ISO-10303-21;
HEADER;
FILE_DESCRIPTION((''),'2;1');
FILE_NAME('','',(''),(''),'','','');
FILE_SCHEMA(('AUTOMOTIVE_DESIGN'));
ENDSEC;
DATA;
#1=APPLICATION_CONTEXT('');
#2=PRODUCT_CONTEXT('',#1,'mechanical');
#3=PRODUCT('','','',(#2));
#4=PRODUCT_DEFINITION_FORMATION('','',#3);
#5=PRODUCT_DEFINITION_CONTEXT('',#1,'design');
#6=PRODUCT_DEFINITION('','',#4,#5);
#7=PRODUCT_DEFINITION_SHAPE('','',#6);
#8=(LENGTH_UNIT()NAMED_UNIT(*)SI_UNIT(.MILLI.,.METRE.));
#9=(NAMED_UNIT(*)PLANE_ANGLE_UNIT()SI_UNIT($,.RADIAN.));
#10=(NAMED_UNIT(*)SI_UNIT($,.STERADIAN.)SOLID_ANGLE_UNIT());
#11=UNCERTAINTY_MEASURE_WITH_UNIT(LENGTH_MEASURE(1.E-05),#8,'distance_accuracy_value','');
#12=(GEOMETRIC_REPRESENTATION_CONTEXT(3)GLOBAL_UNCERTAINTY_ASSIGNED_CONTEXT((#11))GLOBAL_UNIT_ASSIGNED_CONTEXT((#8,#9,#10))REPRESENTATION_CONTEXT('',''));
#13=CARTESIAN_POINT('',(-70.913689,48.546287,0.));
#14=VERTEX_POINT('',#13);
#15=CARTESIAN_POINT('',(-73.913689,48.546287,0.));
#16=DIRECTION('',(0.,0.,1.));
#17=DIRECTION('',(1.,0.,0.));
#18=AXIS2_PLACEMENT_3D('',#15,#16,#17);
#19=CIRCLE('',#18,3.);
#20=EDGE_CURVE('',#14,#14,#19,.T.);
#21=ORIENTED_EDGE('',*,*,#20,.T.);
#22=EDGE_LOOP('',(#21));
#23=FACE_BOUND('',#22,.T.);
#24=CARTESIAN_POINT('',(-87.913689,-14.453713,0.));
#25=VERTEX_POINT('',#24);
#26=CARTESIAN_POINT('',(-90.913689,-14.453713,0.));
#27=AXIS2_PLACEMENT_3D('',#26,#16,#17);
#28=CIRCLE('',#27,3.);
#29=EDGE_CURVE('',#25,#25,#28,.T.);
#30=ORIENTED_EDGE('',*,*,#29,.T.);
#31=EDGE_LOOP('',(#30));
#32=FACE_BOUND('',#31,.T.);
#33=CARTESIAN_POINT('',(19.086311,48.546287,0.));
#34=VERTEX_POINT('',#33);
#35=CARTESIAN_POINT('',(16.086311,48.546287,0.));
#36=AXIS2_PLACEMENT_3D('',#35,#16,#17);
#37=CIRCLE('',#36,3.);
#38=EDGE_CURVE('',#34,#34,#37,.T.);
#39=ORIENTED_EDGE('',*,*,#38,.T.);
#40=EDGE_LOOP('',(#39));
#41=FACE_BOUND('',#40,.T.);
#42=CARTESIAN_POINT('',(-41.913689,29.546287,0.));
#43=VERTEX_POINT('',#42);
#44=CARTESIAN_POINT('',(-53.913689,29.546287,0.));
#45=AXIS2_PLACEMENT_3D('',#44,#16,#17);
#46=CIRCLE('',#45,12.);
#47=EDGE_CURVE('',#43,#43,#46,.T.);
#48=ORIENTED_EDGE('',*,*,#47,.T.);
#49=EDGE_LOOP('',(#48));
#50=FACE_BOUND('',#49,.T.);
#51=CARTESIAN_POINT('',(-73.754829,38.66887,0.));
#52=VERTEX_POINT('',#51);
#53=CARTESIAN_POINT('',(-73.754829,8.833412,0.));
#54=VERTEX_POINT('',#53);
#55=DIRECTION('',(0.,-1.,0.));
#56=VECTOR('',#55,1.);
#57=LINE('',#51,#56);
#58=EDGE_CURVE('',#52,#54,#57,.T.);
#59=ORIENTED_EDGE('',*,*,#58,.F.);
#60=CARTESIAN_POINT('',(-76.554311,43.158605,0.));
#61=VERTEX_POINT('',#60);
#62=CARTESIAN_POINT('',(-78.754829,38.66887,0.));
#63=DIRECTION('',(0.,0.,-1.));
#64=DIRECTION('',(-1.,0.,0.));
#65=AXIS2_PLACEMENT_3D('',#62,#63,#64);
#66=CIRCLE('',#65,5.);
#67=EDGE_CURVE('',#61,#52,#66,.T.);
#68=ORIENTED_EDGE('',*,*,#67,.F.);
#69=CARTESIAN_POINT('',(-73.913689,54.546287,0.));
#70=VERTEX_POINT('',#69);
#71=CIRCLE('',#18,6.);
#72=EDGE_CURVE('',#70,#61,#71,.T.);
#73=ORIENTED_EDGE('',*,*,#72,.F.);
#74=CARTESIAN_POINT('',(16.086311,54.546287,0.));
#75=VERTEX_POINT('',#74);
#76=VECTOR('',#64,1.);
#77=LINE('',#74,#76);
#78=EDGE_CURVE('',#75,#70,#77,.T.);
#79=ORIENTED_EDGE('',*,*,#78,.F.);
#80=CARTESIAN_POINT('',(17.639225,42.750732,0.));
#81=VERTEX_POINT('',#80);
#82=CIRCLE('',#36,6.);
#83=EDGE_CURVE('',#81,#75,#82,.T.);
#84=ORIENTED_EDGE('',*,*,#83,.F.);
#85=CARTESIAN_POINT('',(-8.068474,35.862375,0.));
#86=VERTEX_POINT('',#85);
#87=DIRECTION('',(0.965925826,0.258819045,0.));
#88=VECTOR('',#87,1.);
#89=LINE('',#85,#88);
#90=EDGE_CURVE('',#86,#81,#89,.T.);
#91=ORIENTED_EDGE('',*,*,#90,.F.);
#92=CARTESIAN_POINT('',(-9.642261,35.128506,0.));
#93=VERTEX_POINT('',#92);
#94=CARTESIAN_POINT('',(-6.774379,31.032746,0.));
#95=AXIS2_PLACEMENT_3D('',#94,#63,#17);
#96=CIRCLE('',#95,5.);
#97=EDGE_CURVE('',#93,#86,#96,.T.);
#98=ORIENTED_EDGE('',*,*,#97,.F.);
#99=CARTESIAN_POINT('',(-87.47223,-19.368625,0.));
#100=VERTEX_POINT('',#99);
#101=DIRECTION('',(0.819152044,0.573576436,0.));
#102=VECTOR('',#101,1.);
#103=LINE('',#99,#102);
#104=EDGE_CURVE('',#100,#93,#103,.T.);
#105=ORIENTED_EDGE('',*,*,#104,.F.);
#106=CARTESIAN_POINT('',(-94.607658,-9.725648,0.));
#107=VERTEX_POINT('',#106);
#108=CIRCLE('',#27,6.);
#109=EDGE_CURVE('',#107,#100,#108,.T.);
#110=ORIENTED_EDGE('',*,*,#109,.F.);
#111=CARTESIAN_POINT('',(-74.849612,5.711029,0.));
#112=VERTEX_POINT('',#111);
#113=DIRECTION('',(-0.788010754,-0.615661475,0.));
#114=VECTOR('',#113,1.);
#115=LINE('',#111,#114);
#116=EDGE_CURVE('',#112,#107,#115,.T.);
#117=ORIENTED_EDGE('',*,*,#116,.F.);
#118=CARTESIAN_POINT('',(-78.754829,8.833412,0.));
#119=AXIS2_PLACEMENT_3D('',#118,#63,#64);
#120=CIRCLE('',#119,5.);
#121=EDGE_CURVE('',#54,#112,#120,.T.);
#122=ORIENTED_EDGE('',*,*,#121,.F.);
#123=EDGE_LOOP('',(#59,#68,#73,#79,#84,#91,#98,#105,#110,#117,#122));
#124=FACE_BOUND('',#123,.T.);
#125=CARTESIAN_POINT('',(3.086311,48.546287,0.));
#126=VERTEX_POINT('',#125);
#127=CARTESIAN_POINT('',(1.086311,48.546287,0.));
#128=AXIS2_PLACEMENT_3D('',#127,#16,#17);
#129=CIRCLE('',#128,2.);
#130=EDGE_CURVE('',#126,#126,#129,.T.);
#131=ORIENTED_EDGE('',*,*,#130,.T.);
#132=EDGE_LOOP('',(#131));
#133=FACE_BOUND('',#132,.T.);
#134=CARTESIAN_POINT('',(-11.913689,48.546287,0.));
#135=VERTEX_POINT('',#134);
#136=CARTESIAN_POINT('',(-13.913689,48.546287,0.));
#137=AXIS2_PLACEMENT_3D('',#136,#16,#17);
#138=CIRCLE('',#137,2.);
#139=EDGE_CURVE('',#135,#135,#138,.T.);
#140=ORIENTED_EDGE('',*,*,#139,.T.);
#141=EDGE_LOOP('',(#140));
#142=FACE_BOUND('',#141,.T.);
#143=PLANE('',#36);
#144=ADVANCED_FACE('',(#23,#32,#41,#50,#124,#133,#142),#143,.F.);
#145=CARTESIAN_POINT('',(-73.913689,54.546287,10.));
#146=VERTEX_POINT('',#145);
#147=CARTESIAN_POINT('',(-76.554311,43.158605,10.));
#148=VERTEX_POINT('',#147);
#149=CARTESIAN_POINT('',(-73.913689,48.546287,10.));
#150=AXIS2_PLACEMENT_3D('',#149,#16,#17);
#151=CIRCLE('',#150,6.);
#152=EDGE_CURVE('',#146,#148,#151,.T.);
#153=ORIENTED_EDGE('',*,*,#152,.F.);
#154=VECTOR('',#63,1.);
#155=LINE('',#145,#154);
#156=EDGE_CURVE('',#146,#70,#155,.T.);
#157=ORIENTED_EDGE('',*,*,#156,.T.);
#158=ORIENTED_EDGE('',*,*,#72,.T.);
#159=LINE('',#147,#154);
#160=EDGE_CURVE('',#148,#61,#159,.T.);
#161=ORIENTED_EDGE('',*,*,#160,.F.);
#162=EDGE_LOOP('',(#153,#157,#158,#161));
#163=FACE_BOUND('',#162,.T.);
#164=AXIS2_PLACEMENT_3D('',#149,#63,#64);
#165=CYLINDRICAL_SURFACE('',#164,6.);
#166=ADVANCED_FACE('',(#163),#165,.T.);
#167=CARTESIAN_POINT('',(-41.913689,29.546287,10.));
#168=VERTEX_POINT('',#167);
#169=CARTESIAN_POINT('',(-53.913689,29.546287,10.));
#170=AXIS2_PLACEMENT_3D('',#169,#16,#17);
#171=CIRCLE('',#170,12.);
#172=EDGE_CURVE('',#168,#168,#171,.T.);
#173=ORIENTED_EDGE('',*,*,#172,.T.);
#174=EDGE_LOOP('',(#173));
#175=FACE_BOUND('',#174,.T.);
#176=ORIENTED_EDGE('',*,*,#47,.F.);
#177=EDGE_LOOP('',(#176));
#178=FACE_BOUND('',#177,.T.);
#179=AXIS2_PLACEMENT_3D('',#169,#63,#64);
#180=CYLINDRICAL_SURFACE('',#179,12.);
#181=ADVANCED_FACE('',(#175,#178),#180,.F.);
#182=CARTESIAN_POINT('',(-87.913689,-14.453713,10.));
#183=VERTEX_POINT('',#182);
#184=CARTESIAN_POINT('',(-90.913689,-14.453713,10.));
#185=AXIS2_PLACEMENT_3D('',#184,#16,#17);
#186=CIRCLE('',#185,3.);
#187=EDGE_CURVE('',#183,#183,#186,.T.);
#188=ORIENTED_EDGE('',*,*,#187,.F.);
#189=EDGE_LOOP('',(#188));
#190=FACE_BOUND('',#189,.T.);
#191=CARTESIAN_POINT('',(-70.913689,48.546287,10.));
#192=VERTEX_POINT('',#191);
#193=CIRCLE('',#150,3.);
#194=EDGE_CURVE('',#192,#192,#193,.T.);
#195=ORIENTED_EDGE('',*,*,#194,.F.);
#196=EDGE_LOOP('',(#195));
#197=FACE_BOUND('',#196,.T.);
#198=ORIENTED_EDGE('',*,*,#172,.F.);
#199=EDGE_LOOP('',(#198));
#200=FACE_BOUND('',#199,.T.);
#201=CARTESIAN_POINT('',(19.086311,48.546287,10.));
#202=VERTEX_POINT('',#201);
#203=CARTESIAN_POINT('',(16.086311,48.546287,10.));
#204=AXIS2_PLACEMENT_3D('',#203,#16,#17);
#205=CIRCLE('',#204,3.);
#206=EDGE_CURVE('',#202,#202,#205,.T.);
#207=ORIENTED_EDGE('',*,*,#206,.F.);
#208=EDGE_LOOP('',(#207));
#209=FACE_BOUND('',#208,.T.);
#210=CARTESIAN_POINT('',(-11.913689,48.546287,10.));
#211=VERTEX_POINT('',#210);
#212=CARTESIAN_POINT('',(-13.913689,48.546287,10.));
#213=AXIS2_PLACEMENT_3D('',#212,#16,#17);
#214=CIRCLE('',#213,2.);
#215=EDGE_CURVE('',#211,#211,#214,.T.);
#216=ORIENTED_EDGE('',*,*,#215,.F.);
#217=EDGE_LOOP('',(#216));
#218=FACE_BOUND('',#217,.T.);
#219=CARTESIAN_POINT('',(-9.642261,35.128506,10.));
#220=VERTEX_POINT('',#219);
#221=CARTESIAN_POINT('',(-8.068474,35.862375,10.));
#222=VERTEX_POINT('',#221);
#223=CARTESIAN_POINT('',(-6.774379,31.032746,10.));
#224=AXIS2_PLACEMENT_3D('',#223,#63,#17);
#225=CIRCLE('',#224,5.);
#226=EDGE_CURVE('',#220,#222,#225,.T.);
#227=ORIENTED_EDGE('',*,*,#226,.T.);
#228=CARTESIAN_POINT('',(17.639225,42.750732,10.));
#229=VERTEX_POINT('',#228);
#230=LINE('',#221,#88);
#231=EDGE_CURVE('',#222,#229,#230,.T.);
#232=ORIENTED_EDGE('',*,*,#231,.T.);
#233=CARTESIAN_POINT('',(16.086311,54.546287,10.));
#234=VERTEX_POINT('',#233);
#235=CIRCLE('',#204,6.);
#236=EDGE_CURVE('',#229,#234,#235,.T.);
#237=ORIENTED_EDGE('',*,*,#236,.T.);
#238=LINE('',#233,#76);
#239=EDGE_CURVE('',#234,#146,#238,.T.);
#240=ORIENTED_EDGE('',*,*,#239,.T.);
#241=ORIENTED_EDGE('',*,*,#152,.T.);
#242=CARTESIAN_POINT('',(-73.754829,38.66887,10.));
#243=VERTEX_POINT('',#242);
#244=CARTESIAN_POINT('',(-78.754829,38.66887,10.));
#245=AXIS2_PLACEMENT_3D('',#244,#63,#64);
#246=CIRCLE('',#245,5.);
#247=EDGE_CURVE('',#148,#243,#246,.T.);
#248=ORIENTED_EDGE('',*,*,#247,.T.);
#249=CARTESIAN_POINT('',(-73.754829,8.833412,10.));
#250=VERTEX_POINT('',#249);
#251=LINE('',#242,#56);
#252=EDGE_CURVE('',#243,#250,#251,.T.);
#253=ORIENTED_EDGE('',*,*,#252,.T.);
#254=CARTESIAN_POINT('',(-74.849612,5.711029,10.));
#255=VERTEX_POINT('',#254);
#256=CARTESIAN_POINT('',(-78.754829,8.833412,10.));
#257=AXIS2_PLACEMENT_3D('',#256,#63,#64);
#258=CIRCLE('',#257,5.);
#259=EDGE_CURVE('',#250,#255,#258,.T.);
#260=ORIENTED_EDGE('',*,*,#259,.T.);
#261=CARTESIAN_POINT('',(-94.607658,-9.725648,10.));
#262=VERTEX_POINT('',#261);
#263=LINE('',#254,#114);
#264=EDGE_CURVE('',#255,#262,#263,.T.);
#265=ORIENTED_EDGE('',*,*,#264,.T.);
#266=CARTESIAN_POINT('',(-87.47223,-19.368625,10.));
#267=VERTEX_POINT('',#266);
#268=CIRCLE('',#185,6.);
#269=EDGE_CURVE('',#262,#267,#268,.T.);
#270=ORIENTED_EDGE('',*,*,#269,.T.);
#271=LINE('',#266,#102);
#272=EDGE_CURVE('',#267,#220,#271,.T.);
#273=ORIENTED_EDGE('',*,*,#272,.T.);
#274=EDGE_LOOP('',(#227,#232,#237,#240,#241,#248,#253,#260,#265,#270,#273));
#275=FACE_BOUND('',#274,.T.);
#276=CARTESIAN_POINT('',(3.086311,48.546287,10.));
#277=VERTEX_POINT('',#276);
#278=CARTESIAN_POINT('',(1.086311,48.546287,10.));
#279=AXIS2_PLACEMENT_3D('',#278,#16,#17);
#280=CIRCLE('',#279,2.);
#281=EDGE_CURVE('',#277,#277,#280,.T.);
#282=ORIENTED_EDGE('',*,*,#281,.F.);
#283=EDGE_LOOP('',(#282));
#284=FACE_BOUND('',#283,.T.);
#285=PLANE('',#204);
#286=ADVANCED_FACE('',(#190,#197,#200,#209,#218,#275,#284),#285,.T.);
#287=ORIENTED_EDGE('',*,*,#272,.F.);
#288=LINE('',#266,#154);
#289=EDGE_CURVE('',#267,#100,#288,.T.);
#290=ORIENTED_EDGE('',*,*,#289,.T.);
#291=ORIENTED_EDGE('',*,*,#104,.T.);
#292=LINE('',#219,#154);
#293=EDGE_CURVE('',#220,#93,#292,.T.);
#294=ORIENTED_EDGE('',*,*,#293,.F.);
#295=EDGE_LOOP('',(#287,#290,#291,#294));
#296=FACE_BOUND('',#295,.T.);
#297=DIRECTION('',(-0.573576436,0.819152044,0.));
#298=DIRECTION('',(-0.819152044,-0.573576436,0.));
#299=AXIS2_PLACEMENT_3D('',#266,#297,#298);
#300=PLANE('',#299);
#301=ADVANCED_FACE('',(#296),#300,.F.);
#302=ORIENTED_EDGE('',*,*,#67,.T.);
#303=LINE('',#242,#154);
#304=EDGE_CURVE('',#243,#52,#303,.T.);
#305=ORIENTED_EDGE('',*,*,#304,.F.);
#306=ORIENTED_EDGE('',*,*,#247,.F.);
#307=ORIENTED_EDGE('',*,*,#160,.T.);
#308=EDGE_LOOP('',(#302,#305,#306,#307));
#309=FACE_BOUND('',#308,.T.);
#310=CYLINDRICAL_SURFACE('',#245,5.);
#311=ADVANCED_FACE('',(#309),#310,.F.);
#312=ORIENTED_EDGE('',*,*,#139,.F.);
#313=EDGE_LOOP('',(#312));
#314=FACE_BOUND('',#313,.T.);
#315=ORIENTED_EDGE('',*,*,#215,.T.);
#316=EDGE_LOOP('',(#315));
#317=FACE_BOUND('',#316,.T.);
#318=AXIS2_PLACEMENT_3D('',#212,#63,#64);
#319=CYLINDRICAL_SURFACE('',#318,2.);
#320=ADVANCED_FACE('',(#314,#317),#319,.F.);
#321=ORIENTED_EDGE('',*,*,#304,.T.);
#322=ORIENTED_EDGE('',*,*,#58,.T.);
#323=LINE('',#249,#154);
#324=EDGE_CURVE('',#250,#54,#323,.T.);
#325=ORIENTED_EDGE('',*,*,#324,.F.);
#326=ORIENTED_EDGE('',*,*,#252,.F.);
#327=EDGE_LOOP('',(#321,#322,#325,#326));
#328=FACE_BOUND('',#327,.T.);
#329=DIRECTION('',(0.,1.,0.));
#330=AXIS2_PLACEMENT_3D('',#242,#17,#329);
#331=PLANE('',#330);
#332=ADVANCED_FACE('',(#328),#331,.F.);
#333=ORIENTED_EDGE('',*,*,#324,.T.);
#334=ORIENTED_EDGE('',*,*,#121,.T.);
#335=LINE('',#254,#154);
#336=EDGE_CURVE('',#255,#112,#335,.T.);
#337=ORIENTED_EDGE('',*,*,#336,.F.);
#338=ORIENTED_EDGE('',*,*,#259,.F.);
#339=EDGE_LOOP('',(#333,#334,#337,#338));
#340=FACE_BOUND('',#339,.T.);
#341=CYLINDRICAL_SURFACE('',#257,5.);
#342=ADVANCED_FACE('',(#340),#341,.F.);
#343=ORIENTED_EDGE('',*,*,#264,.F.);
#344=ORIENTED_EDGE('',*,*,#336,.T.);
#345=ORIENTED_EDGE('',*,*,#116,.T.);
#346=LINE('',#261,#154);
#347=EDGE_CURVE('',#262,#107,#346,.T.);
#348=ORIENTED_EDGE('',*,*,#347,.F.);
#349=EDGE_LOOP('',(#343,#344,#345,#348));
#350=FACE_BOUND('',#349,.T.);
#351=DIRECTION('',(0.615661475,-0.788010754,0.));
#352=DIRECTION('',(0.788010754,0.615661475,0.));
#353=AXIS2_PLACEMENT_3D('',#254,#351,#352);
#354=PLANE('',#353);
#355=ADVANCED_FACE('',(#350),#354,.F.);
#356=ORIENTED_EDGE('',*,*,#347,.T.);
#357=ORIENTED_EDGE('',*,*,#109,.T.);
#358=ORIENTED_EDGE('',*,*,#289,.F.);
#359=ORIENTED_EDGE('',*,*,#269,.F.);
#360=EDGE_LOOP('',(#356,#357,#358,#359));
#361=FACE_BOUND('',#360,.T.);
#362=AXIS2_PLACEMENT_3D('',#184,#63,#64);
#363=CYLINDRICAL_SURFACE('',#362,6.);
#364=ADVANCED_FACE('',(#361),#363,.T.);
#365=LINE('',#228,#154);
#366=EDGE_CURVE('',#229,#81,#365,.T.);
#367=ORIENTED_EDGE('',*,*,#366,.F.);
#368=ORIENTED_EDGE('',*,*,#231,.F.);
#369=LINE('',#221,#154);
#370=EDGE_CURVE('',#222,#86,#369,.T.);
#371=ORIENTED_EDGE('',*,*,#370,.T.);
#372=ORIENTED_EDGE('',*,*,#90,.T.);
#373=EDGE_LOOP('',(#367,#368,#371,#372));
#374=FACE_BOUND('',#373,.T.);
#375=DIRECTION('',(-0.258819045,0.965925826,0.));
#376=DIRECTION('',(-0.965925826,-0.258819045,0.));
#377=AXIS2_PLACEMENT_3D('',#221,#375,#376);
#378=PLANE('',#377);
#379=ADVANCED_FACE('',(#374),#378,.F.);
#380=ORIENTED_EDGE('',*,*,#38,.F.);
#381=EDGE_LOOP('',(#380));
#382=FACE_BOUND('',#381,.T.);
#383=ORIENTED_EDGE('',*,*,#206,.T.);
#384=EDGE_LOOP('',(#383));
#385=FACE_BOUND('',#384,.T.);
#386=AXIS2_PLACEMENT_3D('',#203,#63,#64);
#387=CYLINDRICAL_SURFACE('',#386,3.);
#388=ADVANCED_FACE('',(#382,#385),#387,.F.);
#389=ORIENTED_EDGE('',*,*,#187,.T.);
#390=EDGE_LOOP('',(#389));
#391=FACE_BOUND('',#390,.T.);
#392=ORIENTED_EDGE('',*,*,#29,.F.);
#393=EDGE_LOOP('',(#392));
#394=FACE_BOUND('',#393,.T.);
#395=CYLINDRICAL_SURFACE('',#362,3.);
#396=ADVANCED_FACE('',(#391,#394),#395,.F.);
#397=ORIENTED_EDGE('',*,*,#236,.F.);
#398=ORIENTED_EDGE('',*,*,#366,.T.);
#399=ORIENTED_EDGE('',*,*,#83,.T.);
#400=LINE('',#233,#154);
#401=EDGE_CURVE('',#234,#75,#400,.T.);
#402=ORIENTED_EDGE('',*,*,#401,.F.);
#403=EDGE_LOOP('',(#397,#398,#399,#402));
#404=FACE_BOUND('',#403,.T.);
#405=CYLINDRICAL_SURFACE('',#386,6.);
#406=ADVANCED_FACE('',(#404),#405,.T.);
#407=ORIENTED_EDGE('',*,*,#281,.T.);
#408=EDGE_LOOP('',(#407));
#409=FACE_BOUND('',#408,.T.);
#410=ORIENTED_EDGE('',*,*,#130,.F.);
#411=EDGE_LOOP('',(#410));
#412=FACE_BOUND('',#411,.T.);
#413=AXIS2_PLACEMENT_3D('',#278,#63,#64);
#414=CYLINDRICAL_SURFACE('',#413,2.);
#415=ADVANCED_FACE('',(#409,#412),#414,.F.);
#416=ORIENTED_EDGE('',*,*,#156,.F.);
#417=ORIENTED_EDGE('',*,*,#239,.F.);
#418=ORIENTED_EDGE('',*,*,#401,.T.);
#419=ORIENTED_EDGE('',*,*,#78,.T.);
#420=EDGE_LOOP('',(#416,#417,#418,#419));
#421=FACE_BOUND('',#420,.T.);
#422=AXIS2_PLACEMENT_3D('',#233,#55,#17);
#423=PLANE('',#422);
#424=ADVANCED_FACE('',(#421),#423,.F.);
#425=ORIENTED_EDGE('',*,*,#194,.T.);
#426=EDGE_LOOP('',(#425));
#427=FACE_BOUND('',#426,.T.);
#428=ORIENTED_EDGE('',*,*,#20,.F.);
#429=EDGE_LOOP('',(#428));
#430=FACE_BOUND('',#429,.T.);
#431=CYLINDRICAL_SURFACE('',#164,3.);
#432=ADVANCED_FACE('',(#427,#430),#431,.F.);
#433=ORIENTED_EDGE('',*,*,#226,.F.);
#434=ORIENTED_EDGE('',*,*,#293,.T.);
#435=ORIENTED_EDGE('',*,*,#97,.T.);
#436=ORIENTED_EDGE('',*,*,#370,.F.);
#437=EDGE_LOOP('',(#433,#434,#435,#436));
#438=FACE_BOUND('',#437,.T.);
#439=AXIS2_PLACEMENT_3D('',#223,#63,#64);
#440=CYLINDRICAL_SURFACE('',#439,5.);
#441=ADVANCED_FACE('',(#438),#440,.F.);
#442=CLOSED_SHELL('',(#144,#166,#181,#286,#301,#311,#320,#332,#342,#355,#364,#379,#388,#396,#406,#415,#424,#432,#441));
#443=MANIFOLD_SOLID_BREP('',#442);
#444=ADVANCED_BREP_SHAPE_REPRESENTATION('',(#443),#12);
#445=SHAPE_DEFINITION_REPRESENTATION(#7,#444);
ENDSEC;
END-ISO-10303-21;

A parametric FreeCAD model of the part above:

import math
import FreeCAD as App
import Part
import Sketcher
from FreeCAD import Vector
Q = App.Units.Quantity

doc = App.newDocument("Part")
body = doc.addObject("PartDesign::Body", "Body")

sketch1 = body.newObject("Sketcher::SketchObject", "Sketch")
sketch1.AttachmentSupport = (doc.getObject("XY_Plane"), [""])
sketch1.MapMode = "FlatFace"
sketch1.addGeometry([
    Part.LineSegment(Vector(16.086311, 54.546287, 0), Vector(-73.913689, 54.546287, 0)),
    Part.ArcOfCircle(Part.Circle(Vector(-73.913689, 48.546287, 0), Vector(0, 0, 1), 6), math.radians(90), math.radians(243.889506)),
    Part.ArcOfCircle(Part.Circle(Vector(-78.754829, 38.66887, 0), Vector(0, 0, 1), 5), math.radians(0), math.radians(63.889506)),
    Part.LineSegment(Vector(-73.754829, 38.66887, 0), Vector(-73.754829, 8.833412, 0)),
    Part.ArcOfCircle(Part.Circle(Vector(-78.754829, 8.833412, 0), Vector(0, 0, 1), 5), math.radians(-38.643782), math.radians(0)),
    Part.LineSegment(Vector(-74.849612, 5.711029, 0), Vector(-94.607658, -9.725648, 0)),
    Part.ArcOfCircle(Part.Circle(Vector(-90.913689, -14.453713, 0), Vector(0, 0, 1), 6), math.radians(128), math.radians(305)),
    Part.LineSegment(Vector(-87.47223, -19.368625, 0), Vector(-9.642261, 35.128506, 0)),
    Part.ArcOfCircle(Part.Circle(Vector(-6.774379, 31.032746, 0), Vector(0, 0, 1), 5), math.radians(105), math.radians(125)),
    Part.LineSegment(Vector(-8.068474, 35.862375, 0), Vector(17.639225, 42.750732, 0)),
    Part.ArcOfCircle(Part.Circle(Vector(16.086311, 48.546287, 0), Vector(0, 0, 1), 6), math.radians(-75), math.radians(90)),
    Part.Circle(Vector(-90.913689, -14.453713, 0), Vector(0, 0, 1), 3),
    Part.Circle(Vector(-53.913689, 29.546287, 0), Vector(0, 0, 1), 12),
    Part.Circle(Vector(-73.913689, 48.546287, 0), Vector(0, 0, 1), 3),
    Part.Circle(Vector(-13.913689, 48.546287, 0), Vector(0, 0, 1), 2),
    Part.Circle(Vector(1.086311, 48.546287, 0), Vector(0, 0, 1), 2),
    Part.Circle(Vector(16.086311, 48.546287, 0), Vector(0, 0, 1), 3),
], False)
sketch1.addConstraint([
    Sketcher.Constraint("Tangent", 0, 2, 1, 1),
    Sketcher.Constraint("Tangent", 1, 2, 2, 2),
    Sketcher.Constraint("Tangent", 2, 1, 3, 1),
    Sketcher.Constraint("Tangent", 3, 2, 4, 2),
    Sketcher.Constraint("Coincident", 4, 1, 5, 1),
    Sketcher.Constraint("Tangent", 5, 2, 6, 1),
    Sketcher.Constraint("Tangent", 6, 2, 7, 1),
    Sketcher.Constraint("Tangent", 7, 2, 8, 2),
    Sketcher.Constraint("Tangent", 8, 1, 9, 1),
    Sketcher.Constraint("Tangent", 9, 2, 10, 1),
    Sketcher.Constraint("Tangent", 10, 2, 0, 1),
    Sketcher.Constraint("Horizontal", 0),
    Sketcher.Constraint("Vertical", 3),
    Sketcher.Constraint("Coincident", 11, 3, 6, 3),
    Sketcher.Constraint("Coincident", 13, 3, 1, 3),
    Sketcher.Constraint("Coincident", 16, 3, 10, 3),
    Sketcher.Constraint("Equal", 2, 4),
    Sketcher.Constraint("Equal", 1, 6),
    Sketcher.Constraint("Equal", 4, 8),
    Sketcher.Constraint("Equal", 6, 10),
    Sketcher.Constraint("Equal", 11, 13),
    Sketcher.Constraint("Equal", 14, 15),
    Sketcher.Constraint("Equal", 13, 16),
    Sketcher.Constraint("Horizontal", 13, 3, 14, 3),
    Sketcher.Constraint("Horizontal", 14, 3, 15, 3),
    Sketcher.Constraint("Diameter", 11, Q("6 mm")),
    Sketcher.Constraint("Diameter", 12, Q("24 mm")),
    Sketcher.Constraint("Diameter", 14, Q("4 mm")),
    Sketcher.Constraint("Radius", 1, Q("6 mm")),
    Sketcher.Constraint("Radius", 2, Q("5 mm")),
    Sketcher.Constraint("DistanceX", 0, 2, 0, 1, Q("90 mm")),
    Sketcher.Constraint("Angle", 5, Q("-142 deg")),
    Sketcher.Constraint("Angle", 7, Q("35 deg")),
    Sketcher.Constraint("Angle", 9, Q("15 deg")),
    Sketcher.Constraint("DistanceX", 6, 3, 1, 3, Q("17 mm")),
    Sketcher.Constraint("DistanceY", 6, 3, 1, 3, Q("63 mm")),
    Sketcher.Constraint("DistanceX", 1, 3, 12, 3, Q("20 mm")),
    Sketcher.Constraint("DistanceY", 12, 3, 1, 3, Q("19 mm")),
    Sketcher.Constraint("DistanceX", 14, 3, 10, 3, Q("30 mm")),
    Sketcher.Constraint("DistanceX", 15, 3, 10, 3, Q("15 mm")),
    Sketcher.Constraint("DistanceY", 3, 2, 3, 1, Q("29.835458 mm")),
    Sketcher.Constraint("DistanceX", 6, 2, 4, 3, Q("8.717401 mm")),
    Sketcher.Constraint("DistanceX", 1, 3, -1, 1, Q("73.913689 mm")),
    Sketcher.Constraint("DistanceY", -1, 1, 2, 3, Q("38.66887 mm")),
])
pad1 = body.newObject("PartDesign::Pad", "Pad")
pad1.Profile = sketch1
pad1.Length = 10

doc.recompute()
